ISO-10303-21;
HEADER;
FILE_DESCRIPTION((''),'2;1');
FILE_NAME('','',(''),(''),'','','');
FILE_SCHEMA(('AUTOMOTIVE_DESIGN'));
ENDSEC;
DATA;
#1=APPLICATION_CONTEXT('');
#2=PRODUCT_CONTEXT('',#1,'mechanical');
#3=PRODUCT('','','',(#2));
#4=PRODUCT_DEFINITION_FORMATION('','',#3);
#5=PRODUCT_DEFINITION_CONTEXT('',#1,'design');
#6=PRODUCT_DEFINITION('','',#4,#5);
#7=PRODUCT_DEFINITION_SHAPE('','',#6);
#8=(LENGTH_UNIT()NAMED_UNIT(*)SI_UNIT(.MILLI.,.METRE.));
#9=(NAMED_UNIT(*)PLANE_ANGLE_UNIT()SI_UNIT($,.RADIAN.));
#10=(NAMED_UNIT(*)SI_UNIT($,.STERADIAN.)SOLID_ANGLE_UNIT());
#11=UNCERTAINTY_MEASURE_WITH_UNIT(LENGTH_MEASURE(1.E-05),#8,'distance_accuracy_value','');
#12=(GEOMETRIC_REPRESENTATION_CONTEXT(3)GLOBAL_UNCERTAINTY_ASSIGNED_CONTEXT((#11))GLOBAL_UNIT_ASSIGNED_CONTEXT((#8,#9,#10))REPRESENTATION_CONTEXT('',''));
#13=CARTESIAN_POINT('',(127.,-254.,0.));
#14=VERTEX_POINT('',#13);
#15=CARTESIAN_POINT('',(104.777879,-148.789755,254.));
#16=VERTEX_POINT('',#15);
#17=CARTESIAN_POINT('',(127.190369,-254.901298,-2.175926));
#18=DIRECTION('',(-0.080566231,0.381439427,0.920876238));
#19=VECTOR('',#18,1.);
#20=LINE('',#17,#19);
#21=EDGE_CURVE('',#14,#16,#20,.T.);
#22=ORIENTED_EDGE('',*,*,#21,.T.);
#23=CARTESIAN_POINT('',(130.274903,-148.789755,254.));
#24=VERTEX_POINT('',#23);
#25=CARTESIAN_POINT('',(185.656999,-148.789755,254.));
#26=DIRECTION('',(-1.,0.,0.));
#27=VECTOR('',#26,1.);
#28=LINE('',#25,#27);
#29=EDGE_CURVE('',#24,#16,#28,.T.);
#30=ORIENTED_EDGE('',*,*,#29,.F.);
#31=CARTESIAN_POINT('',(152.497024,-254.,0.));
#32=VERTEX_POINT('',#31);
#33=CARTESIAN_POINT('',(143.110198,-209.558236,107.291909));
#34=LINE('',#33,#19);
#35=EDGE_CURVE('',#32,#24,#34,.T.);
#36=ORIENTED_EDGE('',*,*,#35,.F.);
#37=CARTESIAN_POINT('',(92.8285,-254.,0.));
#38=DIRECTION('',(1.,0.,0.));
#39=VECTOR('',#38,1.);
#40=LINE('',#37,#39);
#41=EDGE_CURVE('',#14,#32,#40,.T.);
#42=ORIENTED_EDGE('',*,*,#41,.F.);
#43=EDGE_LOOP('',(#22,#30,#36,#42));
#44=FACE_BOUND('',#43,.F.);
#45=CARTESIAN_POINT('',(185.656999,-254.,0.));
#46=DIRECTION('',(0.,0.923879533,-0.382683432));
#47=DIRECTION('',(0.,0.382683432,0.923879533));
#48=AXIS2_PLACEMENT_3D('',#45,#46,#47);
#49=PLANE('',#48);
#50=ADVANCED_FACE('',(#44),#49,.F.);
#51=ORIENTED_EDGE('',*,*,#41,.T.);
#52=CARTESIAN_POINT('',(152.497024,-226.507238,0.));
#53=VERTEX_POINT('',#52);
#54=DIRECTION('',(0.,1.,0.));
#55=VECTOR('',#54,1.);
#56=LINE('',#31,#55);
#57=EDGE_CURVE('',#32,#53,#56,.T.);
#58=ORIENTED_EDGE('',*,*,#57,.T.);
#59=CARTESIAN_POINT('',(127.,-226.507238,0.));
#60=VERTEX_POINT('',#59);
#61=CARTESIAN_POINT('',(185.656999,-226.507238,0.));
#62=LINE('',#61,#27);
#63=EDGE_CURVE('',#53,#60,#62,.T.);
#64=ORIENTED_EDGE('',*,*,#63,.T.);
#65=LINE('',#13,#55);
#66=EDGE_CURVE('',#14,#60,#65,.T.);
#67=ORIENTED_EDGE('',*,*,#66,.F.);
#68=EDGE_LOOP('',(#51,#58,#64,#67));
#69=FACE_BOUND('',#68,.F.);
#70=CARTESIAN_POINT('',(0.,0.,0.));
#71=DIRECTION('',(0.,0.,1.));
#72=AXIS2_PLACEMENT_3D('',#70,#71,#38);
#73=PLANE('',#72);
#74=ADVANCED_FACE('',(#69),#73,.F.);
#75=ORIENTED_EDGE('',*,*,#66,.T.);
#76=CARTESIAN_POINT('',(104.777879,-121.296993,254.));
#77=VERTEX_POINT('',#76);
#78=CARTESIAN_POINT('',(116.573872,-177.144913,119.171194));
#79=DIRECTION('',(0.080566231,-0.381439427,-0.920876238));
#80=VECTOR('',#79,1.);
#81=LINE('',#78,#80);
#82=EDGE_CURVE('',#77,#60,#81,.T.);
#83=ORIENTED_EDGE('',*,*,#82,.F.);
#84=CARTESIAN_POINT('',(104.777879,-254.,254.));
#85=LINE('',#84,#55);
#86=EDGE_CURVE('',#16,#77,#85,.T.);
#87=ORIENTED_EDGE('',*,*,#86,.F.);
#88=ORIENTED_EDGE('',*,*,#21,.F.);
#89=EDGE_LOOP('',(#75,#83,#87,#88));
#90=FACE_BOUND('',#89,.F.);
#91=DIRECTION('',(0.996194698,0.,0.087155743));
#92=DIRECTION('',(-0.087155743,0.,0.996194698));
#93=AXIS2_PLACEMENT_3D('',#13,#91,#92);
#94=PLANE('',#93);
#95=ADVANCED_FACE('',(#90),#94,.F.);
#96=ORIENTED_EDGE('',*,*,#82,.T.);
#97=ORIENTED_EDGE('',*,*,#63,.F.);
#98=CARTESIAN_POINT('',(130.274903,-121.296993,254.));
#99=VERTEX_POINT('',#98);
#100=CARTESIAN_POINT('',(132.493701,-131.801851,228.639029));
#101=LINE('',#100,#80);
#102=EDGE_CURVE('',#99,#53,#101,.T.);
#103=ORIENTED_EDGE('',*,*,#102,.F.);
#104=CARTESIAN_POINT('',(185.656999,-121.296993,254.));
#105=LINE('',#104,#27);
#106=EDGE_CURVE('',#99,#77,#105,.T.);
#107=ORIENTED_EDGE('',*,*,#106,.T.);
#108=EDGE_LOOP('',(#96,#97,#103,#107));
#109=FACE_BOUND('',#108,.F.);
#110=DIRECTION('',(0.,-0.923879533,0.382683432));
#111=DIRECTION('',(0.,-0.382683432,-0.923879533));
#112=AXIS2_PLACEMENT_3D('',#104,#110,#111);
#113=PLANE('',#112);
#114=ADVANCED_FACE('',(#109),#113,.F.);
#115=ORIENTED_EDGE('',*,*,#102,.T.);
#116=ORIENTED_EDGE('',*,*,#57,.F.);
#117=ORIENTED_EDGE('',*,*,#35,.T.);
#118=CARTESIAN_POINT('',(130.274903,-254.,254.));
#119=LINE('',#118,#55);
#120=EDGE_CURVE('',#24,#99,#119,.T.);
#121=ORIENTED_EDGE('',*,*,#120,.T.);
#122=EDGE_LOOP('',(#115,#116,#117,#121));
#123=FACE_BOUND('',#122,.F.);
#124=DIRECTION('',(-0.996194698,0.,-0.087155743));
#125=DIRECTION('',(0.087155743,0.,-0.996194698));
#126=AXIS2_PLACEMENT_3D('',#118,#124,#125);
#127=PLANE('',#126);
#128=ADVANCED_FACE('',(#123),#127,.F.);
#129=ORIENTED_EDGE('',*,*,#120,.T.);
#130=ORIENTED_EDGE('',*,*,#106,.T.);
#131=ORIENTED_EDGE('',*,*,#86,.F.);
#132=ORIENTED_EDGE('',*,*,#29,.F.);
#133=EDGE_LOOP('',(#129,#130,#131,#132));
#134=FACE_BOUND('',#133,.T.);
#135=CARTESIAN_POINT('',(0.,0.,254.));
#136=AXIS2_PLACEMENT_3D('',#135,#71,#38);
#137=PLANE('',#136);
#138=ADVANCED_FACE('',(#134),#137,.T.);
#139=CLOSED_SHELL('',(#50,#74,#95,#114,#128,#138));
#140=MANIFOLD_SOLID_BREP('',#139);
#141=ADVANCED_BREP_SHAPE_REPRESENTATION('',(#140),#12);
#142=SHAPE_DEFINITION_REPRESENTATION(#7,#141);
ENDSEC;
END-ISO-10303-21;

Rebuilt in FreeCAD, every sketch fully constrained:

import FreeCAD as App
import Part
import Sketcher

V = App.Vector
Q = App.Units.Quantity

doc = App.newDocument("Part")
body = doc.addObject("PartDesign::Body", "Body")

sketch1 = doc.addObject("Sketcher::SketchObject", "Sketch")
body.addObject(sketch1)
sketch1.AttachmentSupport = (doc.XZ_Plane, [""])
sketch1.MapMode = "FlatFace"
sketch1.addGeometry([
    Part.LineSegment(V(0, 254, 0), V(0, 0, 0)),
    Part.LineSegment(V(0, 0, 0), V(186, 0, 0)),
    Part.LineSegment(V(186, 0, 0), V(186, 254, 0)),
    Part.LineSegment(V(186, 254, 0), V(0, 254, 0)),
], False)
sketch1.addConstraint([
    Sketcher.Constraint("Coincident", 0, 2, 1, 1),
    Sketcher.Constraint("Coincident", 1, 2, 2, 1),
    Sketcher.Constraint("Coincident", 2, 2, 3, 1),
    Sketcher.Constraint("Coincident", 3, 2, 0, 1),
    Sketcher.Constraint("Vertical", 0),
    Sketcher.Constraint("Horizontal", 1),
    Sketcher.Constraint("Vertical", 2),
    Sketcher.Constraint("Horizontal", 3),
    Sketcher.Constraint("Coincident", 0, 2, -1, 1),
    Sketcher.Constraint("DistanceY", 0, 2, 0, 1, Q("10 in")),
    Sketcher.Constraint("DistanceX", 1, 1, 1, 2, Q("185.656999 mm")),
])
pad1 = doc.addObject("PartDesign::Pad", "Pad")
body.addObject(pad1)
pad1.Profile = sketch1
pad1.Length = Q("10 in")

sketch2 = doc.addObject("Sketcher::SketchObject", "Sketch001")
body.addObject(sketch2)
sketch2.AttachmentSupport = (doc.XZ_Plane, [""])
sketch2.MapMode = "FlatFace"
sketch2.AttachmentOffset = App.Placement(V(0, 0, 10 * 25.4), App.Rotation())
sketch2.addGeometry([
    Part.LineSegment(V(127, 0, 0), V(105, 254, 0)),
    Part.LineSegment(V(105, 254, 0), V(0, 254, 0)),
    Part.LineSegment(V(0, 254, 0), V(0, 0, 0)),
    Part.LineSegment(V(0, 0, 0), V(127, 0, 0)),
], False)
sketch2.addConstraint([
    Sketcher.Constraint("Coincident", 0, 2, 1, 1),
    Sketcher.Constraint("Coincident", 1, 2, 2, 1),
    Sketcher.Constraint("Coincident", 2, 2, 3, 1),
    Sketcher.Constraint("Coincident", 3, 2, 0, 1),
    Sketcher.Constraint("Horizontal", 1),
    Sketcher.Constraint("Vertical", 2),
    Sketcher.Constraint("Horizontal", 3),
    Sketcher.Constraint("Coincident", 2, 2, -1, 1),
    Sketcher.Constraint("DistanceX", 3, 1, 3, 2, Q("5 in")),
    Sketcher.Constraint("DistanceY", 2, 2, 2, 1, Q("10 in")),
    Sketcher.Constraint("Angle", 0, Q("95 deg")),
])
pocket1 = doc.addObject("PartDesign::Pocket", "Pocket")
body.addObject(pocket1)
pocket1.Profile = sketch2
pocket1.Type = "ThroughAll"

sketch3 = doc.addObject("Sketcher::SketchObject", "Sketch002")
body.addObject(sketch3)
sketch3.AttachmentSupport = (doc.YZ_Plane, [""])
sketch3.MapMode = "FlatFace"
sketch3.AttachmentOffset = App.Placement(V(0, 0, 185.656999), App.Rotation())
sketch3.addGeometry([
    Part.LineSegment(V(-254, 254, 0), V(-254, 0, 0)),
    Part.LineSegment(V(-254, 0, 0), V(-149, 254, 0)),
    Part.LineSegment(V(-149, 254, 0), V(-254, 254, 0)),
], False)
sketch3.addConstraint([
    Sketcher.Constraint("Coincident", 0, 2, 1, 1),
    Sketcher.Constraint("Coincident", 1, 2, 2, 1),
    Sketcher.Constraint("Coincident", 2, 2, 0, 1),
    Sketcher.Constraint("Vertical", 0),
    Sketcher.Constraint("Horizontal", 2),
    Sketcher.Constraint("PointOnObject", 0, 2, -1),
    Sketcher.Constraint("DistanceY", 0, 2, 0, 1, Q("10 in")),
    Sketcher.Constraint("DistanceX", 0, 2, -1, 1, Q("10 in")),
    Sketcher.Constraint("Angle", 1, Q("67.5 deg")),
])
pocket2 = doc.addObject("PartDesign::Pocket", "Pocket001")
body.addObject(pocket2)
pocket2.Profile = sketch3
pocket2.Type = "ThroughAll"

sketch4 = doc.addObject("Sketcher::SketchObject", "Sketch003")
body.addObject(sketch4)
sketch4.AttachmentSupport = (doc.YZ_Plane, [""])
sketch4.MapMode = "FlatFace"
sketch4.AttachmentOffset = App.Placement(V(0, 0, 185.656999), App.Rotation())
sketch4.addGeometry([
    Part.LineSegment(V(-121, 254, 0), V(-227, 0, 0)),
    Part.LineSegment(V(-227, 0, 0), V(0, 0, 0)),
    Part.LineSegment(V(0, 0, 0), V(0, 254, 0)),
    Part.LineSegment(V(0, 254, 0), V(-121, 254, 0)),
], False)
sketch4.addConstraint([
    Sketcher.Constraint("Coincident", 0, 2, 1, 1),
    Sketcher.Constraint("Coincident", 1, 2, 2, 1),
    Sketcher.Constraint("Coincident", 2, 2, 3, 1),
    Sketcher.Constraint("Coincident", 3, 2, 0, 1),
    Sketcher.Constraint("Horizontal", 1),
    Sketcher.Constraint("Vertical", 2),
    Sketcher.Constraint("Horizontal", 3),
    Sketcher.Constraint("Coincident", 1, 2, -1, 1),
    Sketcher.Constraint("DistanceY", 2, 1, 2, 2, Q("10 in")),
    Sketcher.Constraint("Angle", 0, Q("-112.5 deg")),
    Sketcher.Constraint("DistanceX", 1, 1, 1, 2, Q("226.507238 mm")),
])
pocket3 = doc.addObject("PartDesign::Pocket", "Pocket002")
body.addObject(pocket3)
pocket3.Profile = sketch4
pocket3.Type = "ThroughAll"

sketch5 = doc.addObject("Sketcher::SketchObject", "Sketch004")
body.addObject(sketch5)
sketch5.AttachmentSupport = (doc.XZ_Plane, [""])
sketch5.MapMode = "FlatFace"
sketch5.AttachmentOffset = App.Placement(V(0, 0, 10 * 25.4), App.Rotation())
sketch5.addGeometry([
    Part.LineSegment(V(186, 254, 0), V(130, 254, 0)),
    Part.LineSegment(V(130, 254, 0), V(152, 0, 0)),
    Part.LineSegment(V(152, 0, 0), V(186, 0, 0)),
    Part.LineSegment(V(186, 0, 0), V(186, 254, 0)),
], False)
sketch5.addConstraint([
    Sketcher.Constraint("Coincident", 0, 2, 1, 1),
    Sketcher.Constraint("Coincident", 1, 2, 2, 1),
    Sketcher.Constraint("Coincident", 2, 2, 3, 1),
    Sketcher.Constraint("Coincident", 3, 2, 0, 1),
    Sketcher.Constraint("Horizontal", 0),
    Sketcher.Constraint("Horizontal", 2),
    Sketcher.Constraint("Vertical", 3),
    Sketcher.Constraint("PointOnObject", 1, 2, -1),
    Sketcher.Constraint("DistanceY", 3, 1, 3, 2, Q("10 in")),
    Sketcher.Constraint("Angle", 1, Q("-85 deg")),
    Sketcher.Constraint("DistanceX", -1, 1, 2, 2, Q("185.656999 mm")),
    Sketcher.Constraint("DistanceX", 0, 2, 0, 1, Q("55.382096 mm")),
])
pocket4 = doc.addObject("PartDesign::Pocket", "Pocket003")
body.addObject(pocket4)
pocket4.Profile = sketch5
pocket4.Type = "ThroughAll"

doc.recompute()
